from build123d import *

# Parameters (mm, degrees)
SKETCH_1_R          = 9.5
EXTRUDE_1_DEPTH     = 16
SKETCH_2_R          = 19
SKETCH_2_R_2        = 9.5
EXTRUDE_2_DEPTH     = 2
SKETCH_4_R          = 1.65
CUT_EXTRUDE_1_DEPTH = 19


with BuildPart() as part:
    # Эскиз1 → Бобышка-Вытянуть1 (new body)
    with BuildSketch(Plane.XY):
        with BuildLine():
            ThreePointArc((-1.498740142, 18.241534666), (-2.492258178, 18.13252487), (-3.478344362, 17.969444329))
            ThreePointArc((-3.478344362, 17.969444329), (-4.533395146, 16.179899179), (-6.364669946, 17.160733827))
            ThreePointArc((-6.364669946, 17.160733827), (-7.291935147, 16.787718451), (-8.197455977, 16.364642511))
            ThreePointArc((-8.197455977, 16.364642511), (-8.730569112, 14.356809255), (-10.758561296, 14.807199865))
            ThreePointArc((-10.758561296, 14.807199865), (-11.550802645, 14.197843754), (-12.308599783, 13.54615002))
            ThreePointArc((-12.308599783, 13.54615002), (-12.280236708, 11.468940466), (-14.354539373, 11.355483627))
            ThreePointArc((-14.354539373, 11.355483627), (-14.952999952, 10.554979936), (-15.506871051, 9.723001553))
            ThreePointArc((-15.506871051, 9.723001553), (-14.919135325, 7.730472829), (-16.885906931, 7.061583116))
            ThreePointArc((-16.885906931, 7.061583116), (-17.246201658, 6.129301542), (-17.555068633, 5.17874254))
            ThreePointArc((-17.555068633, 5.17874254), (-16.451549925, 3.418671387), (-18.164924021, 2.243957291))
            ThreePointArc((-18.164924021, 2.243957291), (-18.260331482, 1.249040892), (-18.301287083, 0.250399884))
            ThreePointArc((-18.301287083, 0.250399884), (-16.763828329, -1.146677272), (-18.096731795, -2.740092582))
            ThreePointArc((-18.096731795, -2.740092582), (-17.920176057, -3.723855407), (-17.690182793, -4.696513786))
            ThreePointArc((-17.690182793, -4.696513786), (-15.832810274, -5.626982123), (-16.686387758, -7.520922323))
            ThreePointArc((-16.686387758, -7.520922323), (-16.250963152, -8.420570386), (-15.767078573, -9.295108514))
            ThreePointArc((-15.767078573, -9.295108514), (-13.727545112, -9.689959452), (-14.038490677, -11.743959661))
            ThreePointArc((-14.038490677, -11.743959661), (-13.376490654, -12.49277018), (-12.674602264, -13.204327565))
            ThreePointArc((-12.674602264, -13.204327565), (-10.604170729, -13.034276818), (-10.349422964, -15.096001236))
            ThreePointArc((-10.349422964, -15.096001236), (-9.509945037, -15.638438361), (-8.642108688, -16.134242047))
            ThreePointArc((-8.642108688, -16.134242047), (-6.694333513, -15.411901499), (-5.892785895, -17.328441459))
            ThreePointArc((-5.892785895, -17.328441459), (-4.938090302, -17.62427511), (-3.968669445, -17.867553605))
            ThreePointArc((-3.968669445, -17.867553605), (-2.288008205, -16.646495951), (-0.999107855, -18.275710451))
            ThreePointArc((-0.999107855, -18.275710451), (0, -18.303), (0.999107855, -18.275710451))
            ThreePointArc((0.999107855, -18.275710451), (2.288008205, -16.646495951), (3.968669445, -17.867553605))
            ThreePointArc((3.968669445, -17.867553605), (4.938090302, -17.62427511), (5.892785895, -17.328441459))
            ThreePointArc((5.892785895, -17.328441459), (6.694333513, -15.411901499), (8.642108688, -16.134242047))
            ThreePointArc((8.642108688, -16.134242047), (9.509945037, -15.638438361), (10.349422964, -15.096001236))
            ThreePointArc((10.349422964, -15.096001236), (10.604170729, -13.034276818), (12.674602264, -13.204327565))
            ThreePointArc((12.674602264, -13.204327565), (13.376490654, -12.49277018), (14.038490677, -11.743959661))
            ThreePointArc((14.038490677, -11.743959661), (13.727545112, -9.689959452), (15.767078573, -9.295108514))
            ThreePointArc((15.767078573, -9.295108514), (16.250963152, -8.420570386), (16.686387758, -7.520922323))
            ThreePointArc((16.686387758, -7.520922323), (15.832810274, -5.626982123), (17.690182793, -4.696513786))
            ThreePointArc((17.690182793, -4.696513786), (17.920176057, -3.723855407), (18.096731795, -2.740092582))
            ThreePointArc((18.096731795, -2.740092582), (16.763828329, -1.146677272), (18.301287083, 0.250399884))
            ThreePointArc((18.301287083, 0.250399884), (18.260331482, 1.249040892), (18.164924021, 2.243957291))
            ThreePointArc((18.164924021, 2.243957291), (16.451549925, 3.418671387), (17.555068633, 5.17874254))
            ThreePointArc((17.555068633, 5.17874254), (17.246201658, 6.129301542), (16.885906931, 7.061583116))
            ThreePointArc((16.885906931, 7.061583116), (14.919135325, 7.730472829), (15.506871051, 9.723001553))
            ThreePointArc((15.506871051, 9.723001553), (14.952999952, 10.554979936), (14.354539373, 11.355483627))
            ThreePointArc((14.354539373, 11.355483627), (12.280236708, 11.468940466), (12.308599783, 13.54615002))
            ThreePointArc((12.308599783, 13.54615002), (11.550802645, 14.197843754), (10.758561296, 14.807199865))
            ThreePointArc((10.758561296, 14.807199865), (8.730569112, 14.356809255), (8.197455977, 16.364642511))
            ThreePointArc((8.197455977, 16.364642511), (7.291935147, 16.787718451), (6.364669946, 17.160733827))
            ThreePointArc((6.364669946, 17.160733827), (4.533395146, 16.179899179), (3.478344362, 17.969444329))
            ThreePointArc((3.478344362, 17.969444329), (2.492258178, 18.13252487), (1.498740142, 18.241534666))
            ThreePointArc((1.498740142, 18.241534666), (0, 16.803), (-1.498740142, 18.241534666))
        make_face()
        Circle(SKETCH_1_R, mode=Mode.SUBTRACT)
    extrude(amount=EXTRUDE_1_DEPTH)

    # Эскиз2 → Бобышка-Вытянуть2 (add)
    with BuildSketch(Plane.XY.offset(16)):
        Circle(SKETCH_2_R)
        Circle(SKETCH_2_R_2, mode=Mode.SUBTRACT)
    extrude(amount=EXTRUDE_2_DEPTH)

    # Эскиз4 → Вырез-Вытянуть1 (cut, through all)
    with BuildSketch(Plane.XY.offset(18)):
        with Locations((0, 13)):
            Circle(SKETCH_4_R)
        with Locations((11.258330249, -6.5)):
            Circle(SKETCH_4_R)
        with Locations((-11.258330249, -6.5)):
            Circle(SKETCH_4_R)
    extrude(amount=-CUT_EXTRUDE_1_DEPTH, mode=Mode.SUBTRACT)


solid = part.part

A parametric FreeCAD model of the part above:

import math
import FreeCAD as App
import Part
import Sketcher

V = App.Vector
Q = App.Units.Quantity

doc = App.newDocument("Part")
body = doc.addObject("PartDesign::Body", "Body")

sketch1 = doc.addObject("Sketcher::SketchObject", "Sketch")
body.addObject(sketch1)
sketch1.AttachmentSupport = (doc.XY_Plane, [""])
sketch1.MapMode = "FlatFace"
sketch1.addGeometry([
    Part.ArcOfCircle(Part.Circle(V(0, 0, 0), V(0, 0, 1), 18.3), math.radians(94.7), math.radians(100.96)),
    Part.ArcOfCircle(Part.Circle(V(-4.9, 17.6, 0), V(0, 0, 1), 1.5), math.radians(-162), math.radians(13)),
    Part.ArcOfCircle(Part.Circle(V(0, 0, 0), V(0, 0, 1), 18.3), math.radians(110.35), math.radians(116.61)),
    Part.ArcOfCircle(Part.Circle(V(-9.5, 15.6, 0), V(0, 0, 1), 1.5), math.radians(-146), math.radians(29)),
    Part.ArcOfCircle(Part.Circle(V(0, 0, 0), V(0, 0, 1), 18.3), math.radians(126), math.radians(132.26)),
    Part.ArcOfCircle(Part.Circle(V(-13.4, 12.5, 0), V(0, 0, 1), 1.5), math.radians(-131), math.radians(45)),
    Part.ArcOfCircle(Part.Circle(V(0, 0, 0), V(0, 0, 1), 18.3), math.radians(141.65), math.radians(147.91)),
    Part.ArcOfCircle(Part.Circle(V(-16.3, 8.4, 0), V(0, 0, 1), 1.5), math.radians(-115), math.radians(60)),
    Part.ArcOfCircle(Part.Circle(V(0, 0, 0), V(0, 0, 1), 18.3), math.radians(157.31), math.radians(163.56)),
    Part.ArcOfCircle(Part.Circle(V(-17.9, 3.7, 0), V(0, 0, 1), 1.5), math.radians(-99), math.radians(76)),
    Part.ArcOfCircle(Part.Circle(V(0, 0, 0), V(0, 0, 1), 18.3), math.radians(172.96), math.radians(179.22)),
    Part.ArcOfCircle(Part.Circle(V(-18.3, -1.2, 0), V(0, 0, 1), 1.5), math.radians(-84), math.radians(92)),
    Part.ArcOfCircle(Part.Circle(V(0, 0, 0), V(0, 0, 1), 18.3), math.radians(-171.39), math.radians(-165.13)),
    Part.ArcOfCircle(Part.Circle(V(-17.2, -6.1, 0), V(0, 0, 1), 1.5), math.radians(-68), math.radians(107)),
    Part.ArcOfCircle(Part.Circle(V(0, 0, 0), V(0, 0, 1), 18.3), math.radians(-155.74), math.radians(-149.48)),
    Part.ArcOfCircle(Part.Circle(V(-15, -10.6, 0), V(0, 0, 1), 1.5), math.radians(-52), math.radians(123)),
    Part.ArcOfCircle(Part.Circle(V(0, 0, 0), V(0, 0, 1), 18.3), math.radians(-140.09), math.radians(-133.83)),
    Part.ArcOfCircle(Part.Circle(V(-11.6, -14.2, 0), V(0, 0, 1), 1.5), math.radians(-37), math.radians(139)),
    Part.ArcOfCircle(Part.Circle(V(0, 0, 0), V(0, 0, 1), 18.3), math.radians(-124.43), math.radians(-118.18)),
    Part.ArcOfCircle(Part.Circle(V(-7.3, -16.8, 0), V(0, 0, 1), 1.5), math.radians(-21), math.radians(154)),
    Part.ArcOfCircle(Part.Circle(V(0, 0, 0), V(0, 0, 1), 18.3), math.radians(-108.78), math.radians(-102.52)),
    Part.ArcOfCircle(Part.Circle(V(-2.5, -18.1, 0), V(0, 0, 1), 1.5), math.radians(-5), math.radians(170)),
    Part.ArcOfCircle(Part.Circle(V(0, 0, 0), V(0, 0, 1), 18.3), math.radians(-93.13), math.radians(-86.87)),
    Part.ArcOfCircle(Part.Circle(V(2.5, -18.1, 0), V(0, 0, 1), 1.5), math.radians(10), math.radians(185)),
    Part.ArcOfCircle(Part.Circle(V(0, 0, 0), V(0, 0, 1), 18.3), math.radians(-77.48), math.radians(-71.22)),
    Part.ArcOfCircle(Part.Circle(V(7.3, -16.8, 0), V(0, 0, 1), 1.5), math.radians(26), math.radians(201)),
    Part.ArcOfCircle(Part.Circle(V(0, 0, 0), V(0, 0, 1), 18.3), math.radians(-61.82), math.radians(-55.57)),
    Part.ArcOfCircle(Part.Circle(V(11.6, -14.2, 0), V(0, 0, 1), 1.5), math.radians(41), math.radians(217)),
    Part.ArcOfCircle(Part.Circle(V(0, 0, 0), V(0, 0, 1), 18.3), math.radians(-46.17), math.radians(-39.91)),
    Part.ArcOfCircle(Part.Circle(V(15, -10.6, 0), V(0, 0, 1), 1.5), math.radians(57), math.radians(232)),
    Part.ArcOfCircle(Part.Circle(V(0, 0, 0), V(0, 0, 1), 18.3), math.radians(-30.52), math.radians(-24.26)),
    Part.ArcOfCircle(Part.Circle(V(17.2, -6.1, 0), V(0, 0, 1), 1.5), math.radians(73), math.radians(248)),
    Part.ArcOfCircle(Part.Circle(V(0, 0, 0), V(0, 0, 1), 18.3), math.radians(-14.87), math.radians(-8.61)),
    Part.ArcOfCircle(Part.Circle(V(18.3, -1.2, 0), V(0, 0, 1), 1.5), math.radians(88), math.radians(264)),
    Part.ArcOfCircle(Part.Circle(V(0, 0, 0), V(0, 0, 1), 18.3), math.radians(0.78), math.radians(7.04)),
    Part.ArcOfCircle(Part.Circle(V(17.9, 3.7, 0), V(0, 0, 1), 1.5), math.radians(104), math.radians(279)),
    Part.ArcOfCircle(Part.Circle(V(0, 0, 0), V(0, 0, 1), 18.3), math.radians(16.44), math.radians(22.69)),
    Part.ArcOfCircle(Part.Circle(V(16.3, 8.4, 0), V(0, 0, 1), 1.5), math.radians(120), math.radians(295)),
    Part.ArcOfCircle(Part.Circle(V(0, 0, 0), V(0, 0, 1), 18.3), math.radians(32.09), math.radians(38.35)),
    Part.ArcOfCircle(Part.Circle(V(13.4, 12.5, 0), V(0, 0, 1), 1.5), math.radians(135), math.radians(311)),
    Part.ArcOfCircle(Part.Circle(V(0, 0, 0), V(0, 0, 1), 18.3), math.radians(47.74), math.radians(54)),
    Part.ArcOfCircle(Part.Circle(V(9.5, 15.6, 0), V(0, 0, 1), 1.5), math.radians(151), math.radians(326)),
    Part.ArcOfCircle(Part.Circle(V(0, 0, 0), V(0, 0, 1), 18.3), math.radians(63.39), math.radians(69.65)),
    Part.ArcOfCircle(Part.Circle(V(4.9, 17.6, 0), V(0, 0, 1), 1.5), math.radians(167), math.radians(342)),
    Part.ArcOfCircle(Part.Circle(V(0, 0, 0), V(0, 0, 1), 18.3), math.radians(79.04), math.radians(85.3)),
    Part.ArcOfCircle(Part.Circle(V(0, 18.3, 0), V(0, 0, 1), 1.5), math.radians(-178), math.radians(-2)),
    Part.Circle(V(0, 0, 0), V(0, 0, 1), 9.5),
], False)
sketch1.addConstraint([
    Sketcher.Constraint("Coincident", 0, 2, 1, 2),
    Sketcher.Constraint("Coincident", 1, 1, 2, 1),
    Sketcher.Constraint("Coincident", 2, 2, 3, 2),
    Sketcher.Constraint("Coincident", 3, 1, 4, 1),
    Sketcher.Constraint("Coincident", 4, 2, 5, 2),
    Sketcher.Constraint("Coincident", 5, 1, 6, 1),
    Sketcher.Constraint("Coincident", 6, 2, 7, 2),
    Sketcher.Constraint("Coincident", 7, 1, 8, 1),
    Sketcher.Constraint("Coincident", 8, 2, 9, 2),
    Sketcher.Constraint("Coincident", 9, 1, 10, 1),
    Sketcher.Constraint("Coincident", 10, 2, 11, 2),
    Sketcher.Constraint("Coincident", 11, 1, 12, 1),
    Sketcher.Constraint("Coincident", 12, 2, 13, 2),
    Sketcher.Constraint("Coincident", 13, 1, 14, 1),
    Sketcher.Constraint("Coincident", 14, 2, 15, 2),
    Sketcher.Constraint("Coincident", 15, 1, 16, 1),
    Sketcher.Constraint("Coincident", 16, 2, 17, 2),
    Sketcher.Constraint("Coincident", 17, 1, 18, 1),
    Sketcher.Constraint("Coincident", 18, 2, 19, 2),
    Sketcher.Constraint("Coincident", 19, 1, 20, 1),
    Sketcher.Constraint("Coincident", 20, 2, 21, 2),
    Sketcher.Constraint("Coincident", 21, 1, 22, 1),
    Sketcher.Constraint("Coincident", 22, 2, 23, 2),
    Sketcher.Constraint("Coincident", 23, 1, 24, 1),
    Sketcher.Constraint("Coincident", 24, 2, 25, 2),
    Sketcher.Constraint("Coincident", 25, 1, 26, 1),
    Sketcher.Constraint("Coincident", 26, 2, 27, 2),
    Sketcher.Constraint("Coincident", 27, 1, 28, 1),
    Sketcher.Constraint("Coincident", 28, 2, 29, 2),
    Sketcher.Constraint("Coincident", 29, 1, 30, 1),
    Sketcher.Constraint("Coincident", 30, 2, 31, 2),
    Sketcher.Constraint("Coincident", 31, 1, 32, 1),
    Sketcher.Constraint("Coincident", 32, 2, 33, 2),
    Sketcher.Constraint("Coincident", 33, 1, 34, 1),
    Sketcher.Constraint("Coincident", 34, 2, 35, 2),
    Sketcher.Constraint("Coincident", 35, 1, 36, 1),
    Sketcher.Constraint("Coincident", 36, 2, 37, 2),
    Sketcher.Constraint("Coincident", 37, 1, 38, 1),
    Sketcher.Constraint("Coincident", 38, 2, 39, 2),
    Sketcher.Constraint("Coincident", 39, 1, 40, 1),
    Sketcher.Constraint("Coincident", 40, 2, 41, 2),
    Sketcher.Constraint("Coincident", 41, 1, 42, 1),
    Sketcher.Constraint("Coincident", 42, 2, 43, 2),
    Sketcher.Constraint("Coincident", 43, 1, 44, 1),
    Sketcher.Constraint("Coincident", 44, 2, 45, 2),
    Sketcher.Constraint("Coincident", 45, 1, 0, 1),
    Sketcher.Constraint("Coincident", 0, 3, -1, 1),
    Sketcher.Constraint("Coincident", 2, 3, -1, 1),
    Sketcher.Constraint("Coincident", 4, 3, -1, 1),
    Sketcher.Constraint("Coincident", 6, 3, -1, 1),
    Sketcher.Constraint("Coincident", 8, 3, -1, 1),
    Sketcher.Constraint("Coincident", 10, 3, -1, 1),
    Sketcher.Constraint("Coincident", 12, 3, -1, 1),
    Sketcher.Constraint("Coincident", 14, 3, -1, 1),
    Sketcher.Constraint("Coincident", 16, 3, -1, 1),
    Sketcher.Constraint("Coincident", 18, 3, -1, 1),
    Sketcher.Constraint("Coincident", 20, 3, -1, 1),
    Sketcher.Constraint("Coincident", 22, 3, -1, 1),
    Sketcher.Constraint("Coincident", 24, 3, -1, 1),
    Sketcher.Constraint("Coincident", 26, 3, -1, 1),
    Sketcher.Constraint("Coincident", 28, 3, -1, 1),
    Sketcher.Constraint("Coincident", 30, 3, -1, 1),
    Sketcher.Constraint("Coincident", 32, 3, -1, 1),
    Sketcher.Constraint("Coincident", 34, 3, -1, 1),
    Sketcher.Constraint("Coincident", 36, 3, -1, 1),
    Sketcher.Constraint("Coincident", 38, 3, -1, 1),
    Sketcher.Constraint("Coincident", 40, 3, -1, 1),
    Sketcher.Constraint("Coincident", 42, 3, -1, 1),
    Sketcher.Constraint("Coincident", 44, 3, -1, 1),
    Sketcher.Constraint("Coincident", 46, 3, -1, 1),
    Sketcher.Constraint("Equal", 0, 2),
    Sketcher.Constraint("Equal", 1, 3),
    Sketcher.Constraint("Equal", 2, 4),
    Sketcher.Constraint("Equal", 3, 5),
    Sketcher.Constraint("Equal", 4, 6),
    Sketcher.Constraint("Equal", 5, 7),
    Sketcher.Constraint("Equal", 6, 8),
    Sketcher.Constraint("Equal", 7, 9),
    Sketcher.Constraint("Equal", 8, 10),
    Sketcher.Constraint("Equal", 9, 11),
    Sketcher.Constraint("Equal", 10, 12),
    Sketcher.Constraint("Equal", 11, 13),
    Sketcher.Constraint("Equal", 12, 14),
    Sketcher.Constraint("Equal", 13, 15),
    Sketcher.Constraint("Equal", 14, 16),
    Sketcher.Constraint("Equal", 15, 17),
    Sketcher.Constraint("Equal", 16, 18),
    Sketcher.Constraint("Equal", 17, 19),
    Sketcher.Constraint("Equal", 18, 20),
    Sketcher.Constraint("Equal", 19, 21),
    Sketcher.Constraint("Equal", 20, 22),
    Sketcher.Constraint("Equal", 21, 23),
    Sketcher.Constraint("Equal", 22, 24),
    Sketcher.Constraint("Equal", 23, 25),
    Sketcher.Constraint("Equal", 24, 26),
    Sketcher.Constraint("Equal", 25, 27),
    Sketcher.Constraint("Equal", 26, 28),
    Sketcher.Constraint("Equal", 27, 29),
    Sketcher.Constraint("Equal", 28, 30),
    Sketcher.Constraint("Equal", 29, 31),
    Sketcher.Constraint("Equal", 30, 32),
    Sketcher.Constraint("Equal", 31, 33),
    Sketcher.Constraint("Equal", 32, 34),
    Sketcher.Constraint("Equal", 33, 35),
    Sketcher.Constraint("Equal", 34, 36),
    Sketcher.Constraint("Equal", 35, 37),
    Sketcher.Constraint("Equal", 36, 38),
    Sketcher.Constraint("Equal", 37, 39),
    Sketcher.Constraint("Equal", 38, 40),
    Sketcher.Constraint("Equal", 39, 41),
    Sketcher.Constraint("Equal", 40, 42),
    Sketcher.Constraint("Equal", 41, 43),
    Sketcher.Constraint("Equal", 42, 44),
    Sketcher.Constraint("Equal", 43, 45),
    Sketcher.Constraint("Symmetric", 21, 3, 23, 3, -2),
    Sketcher.Constraint("Symmetric", 19, 3, 25, 3, -2),
    Sketcher.Constraint("Symmetric", 17, 3, 27, 3, -2),
    Sketcher.Constraint("Symmetric", 15, 3, 29, 3, -2),
    Sketcher.Constraint("Symmetric", 13, 3, 31, 3, -2),
    Sketcher.Constraint("Symmetric", 11, 3, 33, 3, -2),
    Sketcher.Constraint("Symmetric", 9, 3, 35, 3, -2),
    Sketcher.Constraint("Symmetric", 7, 3, 37, 3, -2),
    Sketcher.Constraint("Symmetric", 5, 3, 39, 3, -2),
    Sketcher.Constraint("Symmetric", 3, 3, 41, 3, -2),
    Sketcher.Constraint("Symmetric", 1, 3, 43, 3, -2),
    Sketcher.Constraint("PointOnObject", 45, 3, -2),
    Sketcher.Constraint("Diameter", 46, Q("19 mm")),
    Sketcher.Constraint("Radius", 1, Q("1.5 mm")),
    Sketcher.Constraint("Radius", 0, Q("18.303 mm")),
    Sketcher.Constraint("DistanceX", 15, 3, -1, 1, Q("14.953 mm")),
    Sketcher.Constraint("DistanceY", -1, 1, 45, 3, Q("18.303 mm")),
    Sketcher.Constraint("DistanceY", -1, 1, 6, 2, Q("9.723002 mm")),
    Sketcher.Constraint("DistanceY", 17, 1, -1, 1, Q("15.096001 mm")),
    Sketcher.Constraint("DistanceX", 13, 3, -1, 1, Q("17.246202 mm")),
    Sketcher.Constraint("DistanceY", 13, 3, -1, 1, Q("6.129302 mm")),
    Sketcher.Constraint("DistanceY", -1, 1, 3, 1, Q("14.8072 mm")),
    Sketcher.Constraint("DistanceX", 4, 2, -1, 1, Q("12.3086 mm")),
    Sketcher.Constraint("DistanceY", -1, 1, 10, 2, Q("0.2504 mm")),
    Sketcher.Constraint("DistanceX", 1, 3, -1, 1, Q("4.93809 mm")),
    Sketcher.Constraint("DistanceY", -1, 1, 3, 3, Q("15.638438 mm")),
    Sketcher.Constraint("DistanceX", 5, 3, -1, 1, Q("13.376491 mm")),
    Sketcher.Constraint("DistanceY", -1, 1, 7, 3, Q("8.42057 mm")),
    Sketcher.Constraint("DistanceX", 11, 3, -1, 1, Q("18.260331 mm")),
    Sketcher.Constraint("DistanceY", 15, 3, -1, 1, Q("10.55498 mm")),
    Sketcher.Constraint("DistanceY", 19, 3, -1, 1, Q("16.787718 mm")),
    Sketcher.Constraint("DistanceX", 21, 3, -1, 1, Q("2.492258 mm")),
    Sketcher.Constraint("DistanceX", 1, 1, -1, 1, Q("6.36467 mm")),
    Sketcher.Constraint("DistanceX", 8, 2, -1, 1, Q("17.555069 mm")),
    Sketcher.Constraint("DistanceX", 18, 2, -1, 1, Q("8.642109 mm")),
    Sketcher.Constraint("DistanceX", 20, 2, -1, 1, Q("3.968669 mm")),
    Sketcher.Constraint("DistanceX", 9, 3, -1, 1, Q("17.920176 mm")),
    Sketcher.Constraint("DistanceX", 17, 3, -1, 1, Q("11.550803 mm")),
])
pad1 = doc.addObject("PartDesign::Pad", "Pad")
body.addObject(pad1)
pad1.Profile = sketch1
pad1.Length = 16

sketch2 = doc.addObject("Sketcher::SketchObject", "Sketch001")
body.addObject(sketch2)
sketch2.AttachmentSupport = (doc.XY_Plane, [""])
sketch2.MapMode = "FlatFace"
sketch2.AttachmentOffset = App.Placement(V(0, 0, 16), App.Rotation())
sketch2.addGeometry([
    Part.Circle(V(0, 0, 0), V(0, 0, 1), 19),
    Part.Circle(V(0, 0, 0), V(0, 0, 1), 10),
], False)
sketch2.addConstraint([
    Sketcher.Constraint("Coincident", 0, 3, -1, 1),
    Sketcher.Constraint("Coincident", 1, 3, -1, 1),
    Sketcher.Constraint("Diameter", 0, Q("38 mm")),
    Sketcher.Constraint("Diameter", 1, Q("19 mm")),
])
pad2 = doc.addObject("PartDesign::Pad", "Pad001")
body.addObject(pad2)
pad2.Profile = sketch2
pad2.Length = 2

sketch3 = doc.addObject("Sketcher::SketchObject", "Sketch002")
body.addObject(sketch3)
sketch3.AttachmentSupport = (doc.XY_Plane, [""])
sketch3.MapMode = "FlatFace"
sketch3.AttachmentOffset = App.Placement(V(0, 0, 18), App.Rotation())
sketch3.addGeometry([
    Part.Circle(V(0, 13, 0), V(0, 0, 1), 1.6),
    Part.Circle(V(11.3, -6.5, 0), V(0, 0, 1), 1.6),
    Part.Circle(V(-11.3, -6.5, 0), V(0, 0, 1), 1.6),
], False)
sketch3.addConstraint([
    Sketcher.Constraint("Equal", 0, 1),
    Sketcher.Constraint("Equal", 1, 2),
    Sketcher.Constraint("Symmetric", 1, 3, 2, 3, -2),
    Sketcher.Constraint("PointOnObject", 0, 3, -2),
    Sketcher.Constraint("Diameter", 0, Q("3.3 mm")),
    Sketcher.Constraint("DistanceY", -1, 1, 0, 3, Q("13 mm")),
    Sketcher.Constraint("DistanceY", 1, 3, -1, 1, Q("6.5 mm")),
    Sketcher.Constraint("DistanceX", -1, 1, 1, 3, Q("11.25833 mm")),
])
pocket1 = doc.addObject("PartDesign::Pocket", "Pocket")
body.addObject(pocket1)
pocket1.Profile = sketch3
pocket1.Type = "ThroughAll"

doc.recompute()
